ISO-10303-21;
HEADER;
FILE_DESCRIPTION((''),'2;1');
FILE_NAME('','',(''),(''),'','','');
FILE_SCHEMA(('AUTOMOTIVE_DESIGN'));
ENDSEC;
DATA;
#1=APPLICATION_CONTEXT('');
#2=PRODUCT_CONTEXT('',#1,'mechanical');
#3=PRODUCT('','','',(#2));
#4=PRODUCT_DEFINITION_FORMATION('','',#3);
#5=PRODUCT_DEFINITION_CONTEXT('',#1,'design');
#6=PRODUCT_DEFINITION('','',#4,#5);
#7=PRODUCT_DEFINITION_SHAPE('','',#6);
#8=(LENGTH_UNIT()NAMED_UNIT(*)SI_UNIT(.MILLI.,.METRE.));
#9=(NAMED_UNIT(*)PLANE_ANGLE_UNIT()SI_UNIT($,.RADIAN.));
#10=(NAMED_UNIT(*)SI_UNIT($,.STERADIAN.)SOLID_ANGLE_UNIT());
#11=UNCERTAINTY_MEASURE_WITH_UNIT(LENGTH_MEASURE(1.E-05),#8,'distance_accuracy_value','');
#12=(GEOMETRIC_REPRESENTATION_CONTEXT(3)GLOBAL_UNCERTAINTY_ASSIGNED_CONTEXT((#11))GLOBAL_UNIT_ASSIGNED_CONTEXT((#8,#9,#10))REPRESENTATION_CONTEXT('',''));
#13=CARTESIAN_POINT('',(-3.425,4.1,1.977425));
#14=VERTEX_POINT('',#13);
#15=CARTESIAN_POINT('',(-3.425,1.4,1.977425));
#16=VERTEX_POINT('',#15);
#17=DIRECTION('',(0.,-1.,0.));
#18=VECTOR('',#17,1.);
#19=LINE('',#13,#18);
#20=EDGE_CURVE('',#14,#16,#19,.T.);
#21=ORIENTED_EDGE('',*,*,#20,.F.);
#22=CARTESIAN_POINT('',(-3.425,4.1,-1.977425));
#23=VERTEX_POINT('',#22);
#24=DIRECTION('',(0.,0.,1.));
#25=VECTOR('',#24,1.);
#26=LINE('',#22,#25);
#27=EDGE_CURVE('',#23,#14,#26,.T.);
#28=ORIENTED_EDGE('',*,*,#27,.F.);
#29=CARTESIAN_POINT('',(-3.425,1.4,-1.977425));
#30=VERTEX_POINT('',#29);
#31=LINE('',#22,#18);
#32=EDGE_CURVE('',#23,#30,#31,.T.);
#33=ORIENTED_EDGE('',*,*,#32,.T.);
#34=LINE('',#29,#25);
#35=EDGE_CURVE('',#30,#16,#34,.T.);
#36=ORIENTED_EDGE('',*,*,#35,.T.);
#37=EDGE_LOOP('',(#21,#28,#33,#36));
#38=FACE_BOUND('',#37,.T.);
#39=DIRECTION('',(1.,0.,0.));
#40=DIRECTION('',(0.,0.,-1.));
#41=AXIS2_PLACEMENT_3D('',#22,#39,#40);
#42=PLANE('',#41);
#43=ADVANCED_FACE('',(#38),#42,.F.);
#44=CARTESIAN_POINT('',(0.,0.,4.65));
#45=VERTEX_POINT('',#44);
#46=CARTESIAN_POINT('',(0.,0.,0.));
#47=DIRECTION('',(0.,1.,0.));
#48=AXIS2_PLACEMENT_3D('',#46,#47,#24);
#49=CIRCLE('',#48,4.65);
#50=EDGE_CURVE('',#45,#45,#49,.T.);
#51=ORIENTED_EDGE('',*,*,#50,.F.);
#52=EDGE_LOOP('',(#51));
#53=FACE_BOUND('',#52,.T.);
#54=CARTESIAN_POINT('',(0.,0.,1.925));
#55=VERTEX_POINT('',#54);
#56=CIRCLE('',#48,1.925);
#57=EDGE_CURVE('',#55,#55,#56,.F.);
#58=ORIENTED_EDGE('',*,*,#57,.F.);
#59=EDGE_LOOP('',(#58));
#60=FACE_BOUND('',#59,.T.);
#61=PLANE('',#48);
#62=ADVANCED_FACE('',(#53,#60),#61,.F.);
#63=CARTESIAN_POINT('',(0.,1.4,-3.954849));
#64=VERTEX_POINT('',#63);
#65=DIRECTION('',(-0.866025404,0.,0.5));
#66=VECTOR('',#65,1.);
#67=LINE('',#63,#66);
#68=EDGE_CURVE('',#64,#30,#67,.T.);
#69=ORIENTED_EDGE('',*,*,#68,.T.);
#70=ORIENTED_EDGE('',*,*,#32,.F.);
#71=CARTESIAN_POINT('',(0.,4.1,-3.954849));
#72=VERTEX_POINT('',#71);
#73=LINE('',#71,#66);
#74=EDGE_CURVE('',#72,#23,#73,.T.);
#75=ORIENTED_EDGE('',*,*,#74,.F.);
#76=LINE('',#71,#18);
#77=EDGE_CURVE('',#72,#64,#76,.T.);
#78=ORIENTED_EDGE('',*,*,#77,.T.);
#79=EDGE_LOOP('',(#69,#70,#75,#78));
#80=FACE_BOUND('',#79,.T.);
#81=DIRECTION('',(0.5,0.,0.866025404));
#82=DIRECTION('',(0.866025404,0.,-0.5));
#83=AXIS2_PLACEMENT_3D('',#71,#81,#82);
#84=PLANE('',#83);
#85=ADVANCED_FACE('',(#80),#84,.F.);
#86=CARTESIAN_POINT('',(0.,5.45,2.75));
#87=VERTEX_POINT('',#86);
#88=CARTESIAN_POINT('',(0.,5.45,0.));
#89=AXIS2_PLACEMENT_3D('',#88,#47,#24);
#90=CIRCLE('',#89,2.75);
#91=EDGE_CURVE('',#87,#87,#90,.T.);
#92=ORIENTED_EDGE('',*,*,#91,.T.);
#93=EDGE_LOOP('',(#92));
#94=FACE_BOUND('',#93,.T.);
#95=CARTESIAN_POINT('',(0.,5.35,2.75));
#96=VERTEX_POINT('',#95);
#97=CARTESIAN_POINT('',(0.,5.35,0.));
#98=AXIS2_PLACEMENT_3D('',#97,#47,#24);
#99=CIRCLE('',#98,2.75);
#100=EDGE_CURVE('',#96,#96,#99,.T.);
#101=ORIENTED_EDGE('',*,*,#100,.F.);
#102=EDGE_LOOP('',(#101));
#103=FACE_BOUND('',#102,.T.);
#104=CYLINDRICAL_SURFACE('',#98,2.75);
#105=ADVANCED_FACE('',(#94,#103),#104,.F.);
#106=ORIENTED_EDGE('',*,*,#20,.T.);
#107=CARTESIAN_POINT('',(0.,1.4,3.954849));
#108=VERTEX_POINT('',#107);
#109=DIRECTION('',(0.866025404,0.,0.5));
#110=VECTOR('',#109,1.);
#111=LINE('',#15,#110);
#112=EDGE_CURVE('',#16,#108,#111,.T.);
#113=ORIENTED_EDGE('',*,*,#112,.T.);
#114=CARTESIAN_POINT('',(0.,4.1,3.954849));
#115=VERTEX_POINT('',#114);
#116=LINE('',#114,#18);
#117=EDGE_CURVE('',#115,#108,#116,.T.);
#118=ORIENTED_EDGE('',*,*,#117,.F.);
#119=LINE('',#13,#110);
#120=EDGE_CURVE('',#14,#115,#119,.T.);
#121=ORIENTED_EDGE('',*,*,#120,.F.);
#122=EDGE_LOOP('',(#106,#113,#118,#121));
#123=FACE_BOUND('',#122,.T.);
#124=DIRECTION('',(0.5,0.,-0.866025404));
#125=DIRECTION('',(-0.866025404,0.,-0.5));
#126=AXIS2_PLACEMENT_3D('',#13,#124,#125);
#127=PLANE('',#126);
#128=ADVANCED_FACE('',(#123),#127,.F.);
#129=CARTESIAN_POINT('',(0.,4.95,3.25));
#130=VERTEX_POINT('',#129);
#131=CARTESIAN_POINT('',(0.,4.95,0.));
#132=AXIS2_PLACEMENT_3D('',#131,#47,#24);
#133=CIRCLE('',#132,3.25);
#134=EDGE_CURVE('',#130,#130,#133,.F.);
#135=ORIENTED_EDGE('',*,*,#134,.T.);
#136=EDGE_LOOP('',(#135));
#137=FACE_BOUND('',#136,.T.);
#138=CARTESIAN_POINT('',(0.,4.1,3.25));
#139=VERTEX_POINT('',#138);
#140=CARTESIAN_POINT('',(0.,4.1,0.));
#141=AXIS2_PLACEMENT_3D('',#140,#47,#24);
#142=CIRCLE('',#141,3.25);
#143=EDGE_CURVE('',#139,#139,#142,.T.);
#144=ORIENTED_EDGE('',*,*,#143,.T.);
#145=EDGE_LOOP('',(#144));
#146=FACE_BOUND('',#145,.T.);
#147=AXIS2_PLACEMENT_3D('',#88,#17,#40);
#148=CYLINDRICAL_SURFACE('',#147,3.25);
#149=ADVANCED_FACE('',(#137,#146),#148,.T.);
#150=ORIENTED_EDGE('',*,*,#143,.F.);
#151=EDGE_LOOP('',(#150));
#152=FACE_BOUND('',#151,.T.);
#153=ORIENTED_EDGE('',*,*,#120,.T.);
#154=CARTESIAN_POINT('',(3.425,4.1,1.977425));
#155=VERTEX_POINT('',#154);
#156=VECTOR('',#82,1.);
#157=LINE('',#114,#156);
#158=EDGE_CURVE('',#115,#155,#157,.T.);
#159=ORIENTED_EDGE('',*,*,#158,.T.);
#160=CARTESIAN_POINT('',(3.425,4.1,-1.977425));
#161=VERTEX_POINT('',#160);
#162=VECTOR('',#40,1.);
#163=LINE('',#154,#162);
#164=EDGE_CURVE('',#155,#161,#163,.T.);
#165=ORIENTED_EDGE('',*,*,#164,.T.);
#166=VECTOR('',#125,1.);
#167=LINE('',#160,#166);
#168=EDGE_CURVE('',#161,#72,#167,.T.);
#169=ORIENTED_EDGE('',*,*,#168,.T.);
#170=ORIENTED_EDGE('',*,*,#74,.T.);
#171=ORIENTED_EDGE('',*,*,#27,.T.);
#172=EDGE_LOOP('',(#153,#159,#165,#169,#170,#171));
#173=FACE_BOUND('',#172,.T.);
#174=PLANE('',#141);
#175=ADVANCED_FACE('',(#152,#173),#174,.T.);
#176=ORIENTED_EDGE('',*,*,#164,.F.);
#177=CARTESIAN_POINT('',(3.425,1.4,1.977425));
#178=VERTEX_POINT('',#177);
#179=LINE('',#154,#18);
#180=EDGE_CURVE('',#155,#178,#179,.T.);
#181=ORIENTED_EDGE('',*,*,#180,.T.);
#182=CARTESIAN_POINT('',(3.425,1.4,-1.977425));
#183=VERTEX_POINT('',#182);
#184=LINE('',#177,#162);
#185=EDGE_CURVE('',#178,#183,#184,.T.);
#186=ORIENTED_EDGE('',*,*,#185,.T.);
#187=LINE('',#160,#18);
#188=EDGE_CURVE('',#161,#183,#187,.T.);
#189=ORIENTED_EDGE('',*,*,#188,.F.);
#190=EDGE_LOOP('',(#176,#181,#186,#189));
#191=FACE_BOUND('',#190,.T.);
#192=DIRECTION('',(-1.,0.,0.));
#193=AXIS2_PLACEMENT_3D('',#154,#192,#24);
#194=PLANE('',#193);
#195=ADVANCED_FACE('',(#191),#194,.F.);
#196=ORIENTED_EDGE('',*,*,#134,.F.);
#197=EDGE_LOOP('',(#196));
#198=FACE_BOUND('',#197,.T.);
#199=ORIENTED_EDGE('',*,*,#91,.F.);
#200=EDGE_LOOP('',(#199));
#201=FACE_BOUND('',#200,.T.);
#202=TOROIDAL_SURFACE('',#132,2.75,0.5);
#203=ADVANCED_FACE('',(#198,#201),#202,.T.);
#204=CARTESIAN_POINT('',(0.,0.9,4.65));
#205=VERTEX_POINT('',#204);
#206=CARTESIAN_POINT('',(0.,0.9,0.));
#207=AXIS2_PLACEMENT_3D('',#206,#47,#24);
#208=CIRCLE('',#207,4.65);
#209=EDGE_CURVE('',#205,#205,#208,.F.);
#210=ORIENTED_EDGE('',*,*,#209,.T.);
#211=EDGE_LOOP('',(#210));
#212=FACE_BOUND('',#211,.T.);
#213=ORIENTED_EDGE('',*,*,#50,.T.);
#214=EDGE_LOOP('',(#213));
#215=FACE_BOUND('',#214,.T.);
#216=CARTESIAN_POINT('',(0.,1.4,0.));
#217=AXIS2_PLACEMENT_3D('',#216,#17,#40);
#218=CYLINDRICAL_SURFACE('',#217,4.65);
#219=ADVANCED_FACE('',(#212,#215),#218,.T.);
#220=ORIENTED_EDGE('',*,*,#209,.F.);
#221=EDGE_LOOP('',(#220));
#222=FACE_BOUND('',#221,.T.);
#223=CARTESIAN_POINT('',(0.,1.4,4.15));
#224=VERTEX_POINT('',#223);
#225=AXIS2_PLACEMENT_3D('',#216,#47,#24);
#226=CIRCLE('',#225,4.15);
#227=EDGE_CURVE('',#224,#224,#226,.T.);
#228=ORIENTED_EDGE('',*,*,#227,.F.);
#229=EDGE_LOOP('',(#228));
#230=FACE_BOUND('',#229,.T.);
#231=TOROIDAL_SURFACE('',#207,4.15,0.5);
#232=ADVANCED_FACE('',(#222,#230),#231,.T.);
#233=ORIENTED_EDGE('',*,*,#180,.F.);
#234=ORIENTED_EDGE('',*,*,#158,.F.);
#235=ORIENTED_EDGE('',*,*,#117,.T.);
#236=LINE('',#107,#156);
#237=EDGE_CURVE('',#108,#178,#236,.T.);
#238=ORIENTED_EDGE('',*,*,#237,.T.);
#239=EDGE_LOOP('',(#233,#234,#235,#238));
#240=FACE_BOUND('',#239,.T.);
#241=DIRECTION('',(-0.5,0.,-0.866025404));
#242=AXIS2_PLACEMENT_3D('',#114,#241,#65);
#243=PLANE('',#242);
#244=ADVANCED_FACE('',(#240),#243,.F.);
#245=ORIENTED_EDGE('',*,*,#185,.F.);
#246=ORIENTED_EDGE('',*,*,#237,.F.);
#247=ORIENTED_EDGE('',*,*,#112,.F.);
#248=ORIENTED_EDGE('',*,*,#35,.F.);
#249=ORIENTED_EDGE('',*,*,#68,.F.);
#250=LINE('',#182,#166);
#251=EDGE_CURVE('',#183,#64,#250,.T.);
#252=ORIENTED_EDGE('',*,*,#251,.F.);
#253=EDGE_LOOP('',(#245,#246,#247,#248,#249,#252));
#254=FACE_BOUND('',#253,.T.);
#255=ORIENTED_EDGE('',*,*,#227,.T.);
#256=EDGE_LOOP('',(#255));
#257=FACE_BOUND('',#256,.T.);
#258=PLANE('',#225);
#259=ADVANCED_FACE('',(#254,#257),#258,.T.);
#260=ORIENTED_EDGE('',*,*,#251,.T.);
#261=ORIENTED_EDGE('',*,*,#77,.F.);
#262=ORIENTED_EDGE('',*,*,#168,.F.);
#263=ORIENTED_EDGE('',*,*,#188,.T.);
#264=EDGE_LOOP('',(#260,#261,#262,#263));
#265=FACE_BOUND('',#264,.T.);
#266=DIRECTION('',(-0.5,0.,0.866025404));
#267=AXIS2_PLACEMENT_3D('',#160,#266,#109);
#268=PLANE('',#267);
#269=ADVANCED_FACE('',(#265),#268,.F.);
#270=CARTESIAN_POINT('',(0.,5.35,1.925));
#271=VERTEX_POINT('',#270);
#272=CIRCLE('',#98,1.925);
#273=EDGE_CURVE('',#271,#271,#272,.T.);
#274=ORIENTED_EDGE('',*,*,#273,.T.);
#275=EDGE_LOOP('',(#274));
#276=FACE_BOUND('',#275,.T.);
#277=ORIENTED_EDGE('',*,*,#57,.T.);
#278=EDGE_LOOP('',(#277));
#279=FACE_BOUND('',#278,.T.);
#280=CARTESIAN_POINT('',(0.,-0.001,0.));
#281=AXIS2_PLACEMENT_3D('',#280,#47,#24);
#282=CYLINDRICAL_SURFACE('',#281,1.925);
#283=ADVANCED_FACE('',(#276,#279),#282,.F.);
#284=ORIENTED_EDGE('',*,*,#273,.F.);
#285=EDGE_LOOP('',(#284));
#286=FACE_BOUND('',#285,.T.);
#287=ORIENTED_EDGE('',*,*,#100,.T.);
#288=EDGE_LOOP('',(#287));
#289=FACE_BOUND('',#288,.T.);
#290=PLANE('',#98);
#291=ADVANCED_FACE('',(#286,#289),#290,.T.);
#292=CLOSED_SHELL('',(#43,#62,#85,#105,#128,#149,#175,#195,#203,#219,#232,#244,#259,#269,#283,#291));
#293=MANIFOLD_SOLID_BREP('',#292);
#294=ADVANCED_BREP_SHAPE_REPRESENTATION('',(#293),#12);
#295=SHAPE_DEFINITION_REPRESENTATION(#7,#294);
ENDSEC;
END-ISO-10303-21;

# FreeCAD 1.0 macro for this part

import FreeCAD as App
import Part
import Sketcher
Q = App.Units.Quantity


def edges_at(feature, points):
    """Names of the edges that pass closest to the given points."""
    edges = feature.Shape.Edges
    near = lambda p: min(range(len(edges)), key=lambda i: edges[i].distToShape(Part.Vertex(*p))[0])
    return sorted({f"Edge{near(p) + 1}" for p in points})


def add_polygon(sketch, points):
    """Adds a closed chain of lines whose ends are joined by coincident constraints."""
    first, n = sketch.GeometryCount, len(points)
    for a, b in zip(points, points[1:] + points[:1]):
        sketch.addGeometry(Part.LineSegment(App.Vector(*a, 0), App.Vector(*b, 0)), False)
    for i in range(n):
        sketch.addConstraint(Sketcher.Constraint("Coincident", first + i, 2, first + (i + 1) % n, 1))

doc = App.newDocument("Part")
params = doc.addObject("Spreadsheet::Sheet", "Params")
for row, (alias, value) in enumerate([
    ("sketch1_diameter", "9.3 mm"),
    ("pad1_length", "1.4 mm"),
    ("pad2_length", "2.7 mm"),
    ("sketch3_diameter", "6.5 mm"),
    ("pad3_length", "1.35 mm"),
    ("fillet_radius", "0.5 mm"),
    ("sketch4_diameter", "3.85 mm"),
    ("sketch5_diameter", "5.5 mm"),
    ("sketch5_diameter2", "3.85 mm"),
    ("pocket2_length", "0.1 mm"),
], start=1):
    params.set(f"A{row}", alias)
    params.set(f"B{row}", "=" + value)
    params.setAlias(f"B{row}", alias)

body = doc.addObject("PartDesign::Body", "Body")

# Sketch on XZ plane
sketch1 = body.newObject("Sketcher::SketchObject", "Sketch")
sketch1.AttachmentSupport = (doc.getObject("XZ_Plane"), [""])
sketch1.MapMode = "FlatFace"
sketch1.addGeometry(Part.Circle(App.Vector(0, 0, 0), App.Vector(0, 0, 1), 4.7), False)
sketch1.addConstraint(Sketcher.Constraint("Coincident", 0, 3, -1, 1))
sketch1.addConstraint(Sketcher.Constraint("Diameter", 0, 9.3))
sketch1.setExpression("Constraints[1]", "Params.sketch1_diameter")
pad1 = body.newObject("PartDesign::Pad", "Pad")
pad1.Profile = sketch1
pad1.setExpression("Length", "Params.pad1_length")
pad1.Reversed = True

# Sketch on XZ plane
sketch2 = body.newObject("Sketcher::SketchObject", "Sketch001")
sketch2.AttachmentSupport = (doc.getObject("XZ_Plane"), [""])
sketch2.MapMode = "FlatFace"
sketch2.AttachmentOffset = App.Placement(App.Vector(0, 0, -1.4), App.Rotation())
add_polygon(sketch2, [(0, 4), (3.4, 2), (3.4, -2), (0, -4), (-3.4, -2), (-3.4, 2)])  # lines 0-5
sketch2.addConstraint(Sketcher.Constraint("Vertical", 1))
sketch2.addConstraint(Sketcher.Constraint("Vertical", 4))
sketch2.addConstraint(Sketcher.Constraint("Symmetric", 0, 2, 3, 2, -1, 1))
sketch2.addConstraint(Sketcher.Constraint("Symmetric", 2, 2, 5, 2, -1, 1))
sketch2.addConstraint(Sketcher.Constraint("PointOnObject", 2, 2, -2))
sketch2.addConstraint(Sketcher.Constraint("Parallel", 2, 5))
sketch2.addConstraint(Sketcher.Constraint("Horizontal", 1, 2, 3, 2))
sketch2.addConstraint(Sketcher.Constraint("Angle", 0, Q("-30 deg")))
sketch2.addConstraint(Sketcher.Constraint("DistanceX", 3, 2, 1, 2, 6.85))
sketch2.addConstraint(Sketcher.Constraint("DistanceY", 1, 2, 1, 1, 3.954849))
pad2 = body.newObject("PartDesign::Pad", "Pad001")
pad2.Profile = sketch2
pad2.setExpression("Length", "Params.pad2_length")
pad2.Reversed = True

# Sketch on XZ plane
sketch3 = body.newObject("Sketcher::SketchObject", "Sketch002")
sketch3.AttachmentSupport = (doc.getObject("XZ_Plane"), [""])
sketch3.MapMode = "FlatFace"
sketch3.AttachmentOffset = App.Placement(App.Vector(0, 0, -4.1), App.Rotation())
sketch3.addGeometry(Part.Circle(App.Vector(0, 0, 0), App.Vector(0, 0, 1), 3.2), False)
sketch3.addConstraint(Sketcher.Constraint("Coincident", 0, 3, -1, 1))
sketch3.addConstraint(Sketcher.Constraint("Diameter", 0, 6.5))
sketch3.setExpression("Constraints[1]", "Params.sketch3_diameter")
pad3 = body.newObject("PartDesign::Pad", "Pad002")
pad3.Profile = sketch3
pad3.setExpression("Length", "Params.pad3_length")
pad3.Reversed = True
doc.recompute()

fillet = body.newObject("PartDesign::Fillet", "Fillet")
fillet.Base = (pad3, edges_at(pad3, [(-3.25, 5.45, 0), (-4.65, 1.4, 0)]))
fillet.setExpression("Radius", "Params.fillet_radius")

# Sketch on XZ plane
sketch4 = body.newObject("Sketcher::SketchObject", "Sketch003")
sketch4.AttachmentSupport = (doc.getObject("XZ_Plane"), [""])
sketch4.MapMode = "FlatFace"
sketch4.AttachmentOffset = App.Placement(App.Vector(0, 0, -5.45), App.Rotation())
sketch4.addGeometry(Part.Circle(App.Vector(0, 0, 0), App.Vector(0, 0, 1), 1.9), False)
sketch4.addConstraint(Sketcher.Constraint("Coincident", 0, 3, -1, 1))
sketch4.addConstraint(Sketcher.Constraint("Diameter", 0, 3.85))
sketch4.setExpression("Constraints[1]", "Params.sketch4_diameter")
pocket1 = body.newObject("PartDesign::Pocket", "Pocket")
pocket1.Profile = sketch4
pocket1.Type = "UpToFirst"
pocket1.Reversed = True

# Sketch on XZ plane
sketch5 = body.newObject("Sketcher::SketchObject", "Sketch004")
sketch5.AttachmentSupport = (doc.getObject("XZ_Plane"), [""])
sketch5.MapMode = "FlatFace"
sketch5.AttachmentOffset = App.Placement(App.Vector(0, 0, -5.45), App.Rotation())
sketch5.addGeometry(Part.Circle(App.Vector(0, 0, 0), App.Vector(0, 0, 1), 2.8), False)
sketch5.addGeometry(Part.Circle(App.Vector(0, 0, 0), App.Vector(0, 0, 1), 1.9), False)
sketch5.addConstraint(Sketcher.Constraint("Coincident", 0, 3, -1, 1))
sketch5.addConstraint(Sketcher.Constraint("Coincident", 1, 3, -1, 1))
sketch5.addConstraint(Sketcher.Constraint("Diameter", 0, 5.5))
sketch5.addConstraint(Sketcher.Constraint("Diameter", 1, 3.85))
sketch5.setExpression("Constraints[2]", "Params.sketch5_diameter")
sketch5.setExpression("Constraints[3]", "Params.sketch5_diameter2")
pocket2 = body.newObject("PartDesign::Pocket", "Pocket001")
pocket2.Profile = sketch5
pocket2.setExpression("Length", "Params.pocket2_length")
pocket2.Reversed = True

doc.recompute()
